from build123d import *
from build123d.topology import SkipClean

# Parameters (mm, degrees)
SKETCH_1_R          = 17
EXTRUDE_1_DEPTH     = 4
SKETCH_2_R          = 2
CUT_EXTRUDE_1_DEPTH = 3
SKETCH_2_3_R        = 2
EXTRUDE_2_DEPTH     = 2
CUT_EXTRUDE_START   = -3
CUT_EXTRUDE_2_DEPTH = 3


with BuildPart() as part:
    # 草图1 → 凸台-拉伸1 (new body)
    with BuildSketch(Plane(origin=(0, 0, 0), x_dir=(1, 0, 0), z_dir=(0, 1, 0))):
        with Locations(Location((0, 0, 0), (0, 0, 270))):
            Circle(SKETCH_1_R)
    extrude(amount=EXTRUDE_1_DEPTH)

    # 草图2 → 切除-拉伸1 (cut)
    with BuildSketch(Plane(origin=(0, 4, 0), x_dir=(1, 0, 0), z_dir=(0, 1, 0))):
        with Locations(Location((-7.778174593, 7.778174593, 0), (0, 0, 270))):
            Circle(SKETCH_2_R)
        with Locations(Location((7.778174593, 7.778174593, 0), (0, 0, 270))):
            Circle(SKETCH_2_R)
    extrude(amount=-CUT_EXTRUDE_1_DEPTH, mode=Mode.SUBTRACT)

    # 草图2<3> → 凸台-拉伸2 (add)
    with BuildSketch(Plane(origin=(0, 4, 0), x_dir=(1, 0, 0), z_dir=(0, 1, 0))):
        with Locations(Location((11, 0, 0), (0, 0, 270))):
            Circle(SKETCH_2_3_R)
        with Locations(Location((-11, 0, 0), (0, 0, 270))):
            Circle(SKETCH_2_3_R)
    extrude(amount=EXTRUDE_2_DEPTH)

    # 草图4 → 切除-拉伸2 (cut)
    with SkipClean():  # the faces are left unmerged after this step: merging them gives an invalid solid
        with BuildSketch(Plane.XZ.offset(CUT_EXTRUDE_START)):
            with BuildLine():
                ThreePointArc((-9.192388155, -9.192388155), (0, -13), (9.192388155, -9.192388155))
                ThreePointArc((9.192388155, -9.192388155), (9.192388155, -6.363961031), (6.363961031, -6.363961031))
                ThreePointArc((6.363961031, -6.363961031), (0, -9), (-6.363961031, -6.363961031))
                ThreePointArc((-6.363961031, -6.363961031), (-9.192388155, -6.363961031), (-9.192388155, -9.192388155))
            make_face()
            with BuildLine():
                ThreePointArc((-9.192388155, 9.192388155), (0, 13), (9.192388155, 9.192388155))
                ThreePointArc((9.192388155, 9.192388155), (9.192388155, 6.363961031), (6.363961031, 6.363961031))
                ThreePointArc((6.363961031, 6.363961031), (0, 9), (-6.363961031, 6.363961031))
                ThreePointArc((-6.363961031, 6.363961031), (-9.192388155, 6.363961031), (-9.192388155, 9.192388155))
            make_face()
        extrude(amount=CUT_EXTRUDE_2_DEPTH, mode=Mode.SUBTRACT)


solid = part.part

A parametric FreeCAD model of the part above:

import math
import FreeCAD as App
import Part
import Sketcher
from FreeCAD import Vector

doc = App.newDocument("Part")
body = doc.addObject("PartDesign::Body", "Body")

sketch1 = body.newObject("Sketcher::SketchObject", "Sketch")
sketch1.AttachmentSupport = (doc.getObject("XZ_Plane"), [""])
sketch1.MapMode = "FlatFace"
sketch1.addGeometry(Part.Circle(Vector(0, 0, 0), Vector(0, 0, 1), 17), False)
sketch1.addConstraint(Sketcher.Constraint("Coincident", 0, 3, -1, 1))
sketch1.addConstraint(Sketcher.Constraint("Diameter", 0, 34.0))
pad1 = body.newObject("PartDesign::Pad", "Pad")
pad1.Profile = sketch1
pad1.Length = 4
pad1.Reversed = True

sketch2 = body.newObject("Sketcher::SketchObject", "Sketch001")
sketch2.AttachmentSupport = (doc.getObject("XZ_Plane"), [""])
sketch2.MapMode = "FlatFace"
sketch2.AttachmentOffset = App.Placement(Vector(0, 0, -4), App.Rotation())
sketch2.addGeometry(Part.Circle(Vector(-7.8, -7.8, 0), Vector(0, 0, 1), 2), False)
sketch2.addGeometry(Part.Circle(Vector(7.8, -7.8, 0), Vector(0, 0, 1), 2), False)
sketch2.addConstraint(Sketcher.Constraint("Equal", 0, 1))
sketch2.addConstraint(Sketcher.Constraint("Symmetric", 0, 3, 1, 3, -2))
sketch2.addConstraint(Sketcher.Constraint("Diameter", 0, 4.0))
sketch2.addConstraint(Sketcher.Constraint("DistanceX", 0, 3, 1, 3, 15.556349))
sketch2.addConstraint(Sketcher.Constraint("DistanceY", 0, 3, -1, 1, 7.778175))
pocket1 = body.newObject("PartDesign::Pocket", "Pocket")
pocket1.Profile = sketch2
pocket1.Length = 3
pocket1.Reversed = True

sketch3 = body.newObject("Sketcher::SketchObject", "Sketch002")
sketch3.AttachmentSupport = (doc.getObject("XZ_Plane"), [""])
sketch3.MapMode = "FlatFace"
sketch3.AttachmentOffset = App.Placement(Vector(0, 0, -4), App.Rotation())
sketch3.addGeometry(Part.Circle(Vector(11, 0, 0), Vector(0, 0, 1), 2), False)
sketch3.addGeometry(Part.Circle(Vector(-11, 0, 0), Vector(0, 0, 1), 2), False)
sketch3.addConstraint(Sketcher.Constraint("Equal", 0, 1))
sketch3.addConstraint(Sketcher.Constraint("Symmetric", 0, 3, 1, 3, -1, 1))
sketch3.addConstraint(Sketcher.Constraint("PointOnObject", 0, 3, -1))
sketch3.addConstraint(Sketcher.Constraint("Diameter", 0, 4.0))
sketch3.addConstraint(Sketcher.Constraint("DistanceX", -1, 1, 0, 3, 11.0))
pad2 = body.newObject("PartDesign::Pad", "Pad001")
pad2.Profile = sketch3
pad2.Length = 2
pad2.Reversed = True

sketch4 = body.newObject("Sketcher::SketchObject", "Sketch003")
sketch4.AttachmentSupport = (doc.getObject("XZ_Plane"), [""])
sketch4.MapMode = "FlatFace"
sketch4.AttachmentOffset = App.Placement(Vector(0, 0, -3), App.Rotation())
sketch4.addGeometry(Part.ArcOfCircle(Part.Circle(Vector(0, 0, 0), Vector(0, 0, 1), 13), math.radians(-135), math.radians(-45)), False)
sketch4.addGeometry(Part.ArcOfCircle(Part.Circle(Vector(7.8, -7.8, 0), Vector(0, 0, 1), 2), math.radians(-45), math.radians(135)), False)
sketch4.addGeometry(Part.ArcOfCircle(Part.Circle(Vector(0, 0, 0), Vector(0, 0, 1), 9), math.radians(-135), math.radians(-45)), False)
sketch4.addGeometry(Part.ArcOfCircle(Part.Circle(Vector(-7.8, -7.8, 0), Vector(0, 0, 1), 2), math.radians(45), math.radians(225)), False)
sketch4.addGeometry(Part.ArcOfCircle(Part.Circle(Vector(0, 0, 0), Vector(0, 0, 1), 13), math.radians(45), math.radians(135)), False)
sketch4.addGeometry(Part.ArcOfCircle(Part.Circle(Vector(-7.8, 7.8, 0), Vector(0, 0, 1), 2), math.radians(135), math.radians(315)), False)
sketch4.addGeometry(Part.ArcOfCircle(Part.Circle(Vector(0, 0, 0), Vector(0, 0, 1), 9), math.radians(45), math.radians(135)), False)
sketch4.addGeometry(Part.ArcOfCircle(Part.Circle(Vector(7.8, 7.8, 0), Vector(0, 0, 1), 2), math.radians(-135), math.radians(45)), False)
sketch4.addConstraint(Sketcher.Constraint("Tangent", 0, 2, 1, 1))
sketch4.addConstraint(Sketcher.Constraint("Tangent", 1, 2, 2, 2))
sketch4.addConstraint(Sketcher.Constraint("Tangent", 2, 1, 3, 1))
sketch4.addConstraint(Sketcher.Constraint("Tangent", 3, 2, 0, 1))
sketch4.addConstraint(Sketcher.Constraint("Tangent", 4, 2, 5, 1))
sketch4.addConstraint(Sketcher.Constraint("Tangent", 5, 2, 6, 2))
sketch4.addConstraint(Sketcher.Constraint("Tangent", 6, 1, 7, 1))
sketch4.addConstraint(Sketcher.Constraint("Tangent", 7, 2, 4, 1))
sketch4.addConstraint(Sketcher.Constraint("Coincident", 0, 3, -1, 1))
sketch4.addConstraint(Sketcher.Constraint("Coincident", 2, 3, -1, 1))
sketch4.addConstraint(Sketcher.Constraint("Coincident", 4, 3, -1, 1))
sketch4.addConstraint(Sketcher.Constraint("Coincident", 6, 3, -1, 1))
sketch4.addConstraint(Sketcher.Constraint("Equal", 0, 4))
sketch4.addConstraint(Sketcher.Constraint("Equal", 3, 5))
sketch4.addConstraint(Sketcher.Constraint("Horizontal", 1, 3, 3, 3))
sketch4.addConstraint(Sketcher.Constraint("Horizontal", 5, 3, 7, 3))
sketch4.addConstraint(Sketcher.Constraint("Vertical", 3, 3, 5, 3))
sketch4.addConstraint(Sketcher.Constraint("Radius", 0, 13.0))
sketch4.addConstraint(Sketcher.Constraint("Radius", 1, 2.0))
sketch4.addConstraint(Sketcher.Constraint("DistanceX", -1, 1, 0, 2, 9.192388))
pocket2 = body.newObject("PartDesign::Pocket", "Pocket001")
pocket2.Profile = sketch4
pocket2.Length = 3
pocket2.Reversed = True

doc.recompute()
